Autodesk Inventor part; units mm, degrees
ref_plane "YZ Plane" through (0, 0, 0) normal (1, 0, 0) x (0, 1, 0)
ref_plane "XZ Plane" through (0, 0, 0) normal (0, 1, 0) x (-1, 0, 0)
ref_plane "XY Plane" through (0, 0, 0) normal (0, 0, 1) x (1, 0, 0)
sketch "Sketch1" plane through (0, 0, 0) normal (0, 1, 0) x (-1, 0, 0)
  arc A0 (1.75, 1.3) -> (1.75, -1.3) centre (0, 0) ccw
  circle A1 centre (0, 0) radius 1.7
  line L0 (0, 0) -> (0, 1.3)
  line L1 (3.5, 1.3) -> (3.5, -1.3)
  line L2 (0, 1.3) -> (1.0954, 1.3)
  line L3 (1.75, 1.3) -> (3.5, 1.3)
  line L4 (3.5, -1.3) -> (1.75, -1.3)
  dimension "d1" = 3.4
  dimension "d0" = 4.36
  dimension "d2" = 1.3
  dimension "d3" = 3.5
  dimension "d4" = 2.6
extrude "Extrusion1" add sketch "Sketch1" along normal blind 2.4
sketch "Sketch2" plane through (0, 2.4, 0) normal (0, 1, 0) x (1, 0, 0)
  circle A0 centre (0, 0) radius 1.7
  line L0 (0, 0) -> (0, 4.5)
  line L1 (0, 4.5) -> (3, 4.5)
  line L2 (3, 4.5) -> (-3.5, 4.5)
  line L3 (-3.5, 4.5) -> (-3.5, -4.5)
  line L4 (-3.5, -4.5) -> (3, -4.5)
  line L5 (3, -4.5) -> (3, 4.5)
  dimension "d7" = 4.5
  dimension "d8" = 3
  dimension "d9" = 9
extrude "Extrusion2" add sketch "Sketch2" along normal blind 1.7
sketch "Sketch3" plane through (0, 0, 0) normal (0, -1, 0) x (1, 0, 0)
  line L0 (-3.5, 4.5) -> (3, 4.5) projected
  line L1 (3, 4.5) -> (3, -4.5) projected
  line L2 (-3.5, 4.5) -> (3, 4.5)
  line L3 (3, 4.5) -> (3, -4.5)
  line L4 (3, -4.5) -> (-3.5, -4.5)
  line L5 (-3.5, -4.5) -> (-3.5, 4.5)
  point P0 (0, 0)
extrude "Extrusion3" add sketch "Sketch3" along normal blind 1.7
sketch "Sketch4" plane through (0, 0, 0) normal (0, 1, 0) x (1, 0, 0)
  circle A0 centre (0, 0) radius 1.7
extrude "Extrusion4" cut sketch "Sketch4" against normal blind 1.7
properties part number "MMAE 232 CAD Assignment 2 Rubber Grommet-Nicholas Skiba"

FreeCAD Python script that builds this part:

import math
import FreeCAD as App
import Part
import Sketcher

V = App.Vector
Q = App.Units.Quantity


def add_polygon(sketch, points):
    """Adds a closed chain of lines whose ends are joined by coincident constraints."""
    first, n = sketch.GeometryCount, len(points)
    for a, b in zip(points, points[1:] + points[:1]):
        sketch.addGeometry(Part.LineSegment(App.Vector(*a, 0), App.Vector(*b, 0)), False)
    for i in range(n):
        sketch.addConstraint(Sketcher.Constraint("Coincident", first + i, 2, first + (i + 1) % n, 1))

doc = App.newDocument("Part")
params = doc.addObject("Spreadsheet::Sheet", "Params")
for row, (alias, value) in enumerate([
    ("sketch1_diameter", "3.4 mm"),
    ("sketch1_radius", "2.18 mm"),
    ("sketch1_height", "2.6 mm"),
    ("pad1_length", "2.4 mm"),
    ("sketch2_width", "3 mm"),
    ("sketch2_height", "9 mm"),
    ("sketch2_diameter", "3.4 mm"),
    ("sketch2_width2", "3.5 mm"),
    ("pad2_length", "1.7 mm"),
    ("sketch3_height", "9 mm"),
    ("sketch3_width", "6.5 mm"),
    ("pad3_length", "1.7 mm"),
    ("sketch4_diameter", "3.4 mm"),
    ("pocket1_length", "1.7 mm"),
], start=1):
    params.set(f"A{row}", alias)
    params.set(f"B{row}", "=" + value)
    params.setAlias(f"B{row}", alias)

body = doc.addObject("PartDesign::Body", "Body")

sketch1 = doc.addObject("Sketcher::SketchObject", "Sketch")
body.addObject(sketch1)
sketch1.AttachmentSupport = (doc.XZ_Plane, [""])
sketch1.MapMode = "FlatFace"
sketch1.addGeometry(Part.LineSegment(V(-3.5, 1.3, 0), V(-1.8, 1.3, 0)), False)
sketch1.addGeometry(Part.ArcOfCircle(Part.Circle(V(0, 0, 0), V(0, 0, 1), 2.2), math.radians(-143), math.radians(143)), False)
sketch1.addGeometry(Part.LineSegment(V(-1.8, -1.3, 0), V(-3.5, -1.3, 0)), False)
sketch1.addGeometry(Part.LineSegment(V(-3.5, -1.3, 0), V(-3.5, 1.3, 0)), False)
sketch1.addGeometry(Part.Circle(V(0, 0, 0), V(0, 0, 1), 1.7), False)
sketch1.addConstraint(Sketcher.Constraint("Coincident", 0, 2, 1, 2))
sketch1.addConstraint(Sketcher.Constraint("Coincident", 1, 1, 2, 1))
sketch1.addConstraint(Sketcher.Constraint("Coincident", 2, 2, 3, 1))
sketch1.addConstraint(Sketcher.Constraint("Coincident", 3, 2, 0, 1))
sketch1.addConstraint(Sketcher.Constraint("Horizontal", 0))
sketch1.addConstraint(Sketcher.Constraint("Horizontal", 2))
sketch1.addConstraint(Sketcher.Constraint("Vertical", 3))
sketch1.addConstraint(Sketcher.Constraint("Coincident", 1, 3, -1, 1))
sketch1.addConstraint(Sketcher.Constraint("Coincident", 4, 3, -1, 1))
sketch1.addConstraint(Sketcher.Constraint("Vertical", 0, 2, 1, 1))
sketch1.addConstraint(Sketcher.Constraint("Diameter", 4, Q("3.4 mm")))
sketch1.addConstraint(Sketcher.Constraint("Radius", 1, Q("2.18 mm")))
sketch1.addConstraint(Sketcher.Constraint("DistanceY", 3, 1, 3, 2, Q("2.6 mm")))
sketch1.addConstraint(Sketcher.Constraint("DistanceX", 2, 2, -1, 1, Q("3.5 mm")))
sketch1.setExpression("Constraints[10]", "Params.sketch1_diameter")
sketch1.setExpression("Constraints[11]", "Params.sketch1_radius")
sketch1.setExpression("Constraints[12]", "Params.sketch1_height")
pad1 = doc.addObject("PartDesign::Pad", "Pad")
body.addObject(pad1)
pad1.Profile = sketch1
pad1.setExpression("Length", "Params.pad1_length")
pad1.Reversed = True

sketch2 = doc.addObject("Sketcher::SketchObject", "Sketch001")
body.addObject(sketch2)
sketch2.AttachmentSupport = (doc.XZ_Plane, [""])
sketch2.MapMode = "FlatFace"
sketch2.AttachmentOffset = App.Placement(V(0, 0, -2.4), App.Rotation())
add_polygon(sketch2, [(3, -4.5), (0, -4.5), (-3.5, -4.5), (-3.5, 4.5), (3, 4.5)])
sketch2.addGeometry(Part.Circle(V(0, 0, 0), V(0, 0, 1), 1.7), False)
sketch2.addConstraint(Sketcher.Constraint("Horizontal", 0))
sketch2.addConstraint(Sketcher.Constraint("Horizontal", 1))
sketch2.addConstraint(Sketcher.Constraint("Vertical", 2))
sketch2.addConstraint(Sketcher.Constraint("Horizontal", 3))
sketch2.addConstraint(Sketcher.Constraint("Vertical", 4))
sketch2.addConstraint(Sketcher.Constraint("Coincident", 5, 3, -1, 1))
sketch2.addConstraint(Sketcher.Constraint("PointOnObject", 0, 2, -2))
sketch2.addConstraint(Sketcher.Constraint("DistanceX", 0, 2, 0, 1, Q("3 mm")))
sketch2.addConstraint(Sketcher.Constraint("DistanceY", 2, 1, 2, 2, Q("9 mm")))
sketch2.addConstraint(Sketcher.Constraint("Diameter", 5, Q("3.4 mm")))
sketch2.addConstraint(Sketcher.Constraint("DistanceY", 0, 2, -1, 1, Q("4.5 mm")))
sketch2.addConstraint(Sketcher.Constraint("DistanceX", 1, 2, 1, 1, Q("3.5 mm")))
sketch2.setExpression("Constraints[12]", "Params.sketch2_width")
sketch2.setExpression("Constraints[13]", "Params.sketch2_height")
sketch2.setExpression("Constraints[14]", "Params.sketch2_diameter")
sketch2.setExpression("Constraints[16]", "Params.sketch2_width2")
pad2 = doc.addObject("PartDesign::Pad", "Pad001")
body.addObject(pad2)
pad2.Profile = sketch2
pad2.setExpression("Length", "Params.pad2_length")
pad2.Reversed = True

sketch3 = doc.addObject("Sketcher::SketchObject", "Sketch002")
body.addObject(sketch3)
sketch3.AttachmentSupport = (doc.XZ_Plane, [""])
sketch3.MapMode = "FlatFace"
add_polygon(sketch3, [(3, 4), (-4, 4), (-4, -4), (3, -4)])
sketch3.addConstraint(Sketcher.Constraint("Horizontal", 0))
sketch3.addConstraint(Sketcher.Constraint("Vertical", 1))
sketch3.addConstraint(Sketcher.Constraint("Horizontal", 2))
sketch3.addConstraint(Sketcher.Constraint("Vertical", 3))
sketch3.addConstraint(Sketcher.Constraint("DistanceY", 1, 2, 1, 1, Q("9 mm")))
sketch3.addConstraint(Sketcher.Constraint("DistanceX", 0, 2, 0, 1, Q("6.5 mm")))
sketch3.addConstraint(Sketcher.Constraint("DistanceX", -1, 1, 2, 2, Q("3 mm")))
sketch3.addConstraint(Sketcher.Constraint("DistanceY", -1, 1, 0, 2, Q("4.5 mm")))
sketch3.setExpression("Constraints[8]", "Params.sketch3_height")
sketch3.setExpression("Constraints[9]", "Params.sketch3_width")
pad3 = doc.addObject("PartDesign::Pad", "Pad002")
body.addObject(pad3)
pad3.Profile = sketch3
pad3.setExpression("Length", "Params.pad3_length")

sketch4 = doc.addObject("Sketcher::SketchObject", "Sketch003")
body.addObject(sketch4)
sketch4.AttachmentSupport = (doc.XZ_Plane, [""])
sketch4.MapMode = "FlatFace"
sketch4.addGeometry(Part.Circle(V(0, 0, 0), V(0, 0, 1), 1.7), False)
sketch4.addConstraint(Sketcher.Constraint("Coincident", 0, 3, -1, 1))
sketch4.addConstraint(Sketcher.Constraint("Diameter", 0, Q("3.4 mm")))
sketch4.setExpression("Constraints[1]", "Params.sketch4_diameter")
pocket1 = doc.addObject("PartDesign::Pocket", "Pocket")
body.addObject(pocket1)
pocket1.Profile = sketch4
pocket1.setExpression("Length", "Params.pocket1_length")
pocket1.Reversed = True

doc.recompute()
